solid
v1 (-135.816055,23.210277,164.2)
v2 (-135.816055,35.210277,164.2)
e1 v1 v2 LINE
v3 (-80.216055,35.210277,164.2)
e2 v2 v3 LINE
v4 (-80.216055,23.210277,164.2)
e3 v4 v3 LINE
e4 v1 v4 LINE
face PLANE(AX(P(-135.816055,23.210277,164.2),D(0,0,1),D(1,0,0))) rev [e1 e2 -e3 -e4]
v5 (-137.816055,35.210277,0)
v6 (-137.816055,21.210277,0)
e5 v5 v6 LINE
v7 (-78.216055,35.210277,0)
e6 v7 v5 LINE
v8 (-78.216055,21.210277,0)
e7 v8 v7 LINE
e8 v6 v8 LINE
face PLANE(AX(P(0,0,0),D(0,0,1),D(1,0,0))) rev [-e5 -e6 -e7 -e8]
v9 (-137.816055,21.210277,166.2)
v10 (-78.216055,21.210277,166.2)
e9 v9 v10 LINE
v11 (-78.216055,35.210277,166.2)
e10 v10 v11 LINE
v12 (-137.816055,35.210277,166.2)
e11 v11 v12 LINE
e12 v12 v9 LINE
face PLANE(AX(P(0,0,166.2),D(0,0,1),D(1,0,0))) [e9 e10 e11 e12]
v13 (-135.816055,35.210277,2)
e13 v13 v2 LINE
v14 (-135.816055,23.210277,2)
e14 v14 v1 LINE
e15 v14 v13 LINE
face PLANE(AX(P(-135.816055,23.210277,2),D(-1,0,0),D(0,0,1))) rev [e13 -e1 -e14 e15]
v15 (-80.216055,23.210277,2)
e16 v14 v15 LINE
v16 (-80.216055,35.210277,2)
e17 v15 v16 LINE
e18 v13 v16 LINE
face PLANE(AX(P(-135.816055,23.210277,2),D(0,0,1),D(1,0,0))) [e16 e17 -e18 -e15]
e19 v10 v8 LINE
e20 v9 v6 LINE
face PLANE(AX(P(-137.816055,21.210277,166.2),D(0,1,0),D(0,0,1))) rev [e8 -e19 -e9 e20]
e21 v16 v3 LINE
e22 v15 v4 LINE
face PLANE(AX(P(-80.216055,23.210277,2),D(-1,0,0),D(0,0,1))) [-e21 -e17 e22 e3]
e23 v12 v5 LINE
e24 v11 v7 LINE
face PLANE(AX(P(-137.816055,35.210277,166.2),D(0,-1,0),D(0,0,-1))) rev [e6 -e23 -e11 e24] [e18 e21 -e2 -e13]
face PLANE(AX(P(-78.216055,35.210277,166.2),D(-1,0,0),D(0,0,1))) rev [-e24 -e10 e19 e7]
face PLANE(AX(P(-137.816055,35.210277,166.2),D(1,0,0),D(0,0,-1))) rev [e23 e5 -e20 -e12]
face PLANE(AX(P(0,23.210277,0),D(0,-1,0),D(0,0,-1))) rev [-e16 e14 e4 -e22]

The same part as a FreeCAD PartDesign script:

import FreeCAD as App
import Part
import Sketcher
Q = App.Units.Quantity

doc = App.newDocument("Part")
params = doc.addObject("Spreadsheet::Sheet", "Params")
for row, (alias, value) in enumerate([
    ("sketch1_height", "14 mm"),
    ("sketch1_width", "59.6 mm"),
    ("pad1_length", "166.2 mm"),
    ("sketch2_width", "55.6 mm"),
    ("sketch2_height", "162.2 mm"),
    ("pocket1_length", "12 mm"),
], start=1):
    params.set(f"A{row}", alias)
    params.set(f"B{row}", "=" + value)
    params.setAlias(f"B{row}", alias)

body = doc.addObject("PartDesign::Body", "Body")

# Sketch on XY plane
sketch1 = body.newObject("Sketcher::SketchObject", "Sketch")
sketch1.AttachmentSupport = (doc.getObject("XY_Plane"), [""])
sketch1.MapMode = "FlatFace"
sketch1.addGeometry([
    Part.LineSegment(App.Vector(-138, 35, 0), App.Vector(-138, 21, 0)),
    Part.LineSegment(App.Vector(-138, 21, 0), App.Vector(-78, 21, 0)),
    Part.LineSegment(App.Vector(-78, 21, 0), App.Vector(-78, 35, 0)),
    Part.LineSegment(App.Vector(-78, 35, 0), App.Vector(-138, 35, 0)),
], False)
sketch1.addConstraint([
    Sketcher.Constraint("Coincident", 0, 2, 1, 1),
    Sketcher.Constraint("Coincident", 1, 2, 2, 1),
    Sketcher.Constraint("Coincident", 2, 2, 3, 1),
    Sketcher.Constraint("Coincident", 3, 2, 0, 1),
    Sketcher.Constraint("Vertical", 0),
    Sketcher.Constraint("Horizontal", 1),
    Sketcher.Constraint("Vertical", 2),
    Sketcher.Constraint("Horizontal", 3),
    Sketcher.Constraint("DistanceY", 0, 2, 0, 1, Q("14 mm")),
    Sketcher.Constraint("DistanceX", 1, 1, 1, 2, Q("59.6 mm")),
    Sketcher.Constraint("DistanceX", 0, 2, -1, 1, Q("137.816055 mm")),
    Sketcher.Constraint("DistanceY", -1, 1, 0, 2, Q("21.210277 mm")),
])
sketch1.setExpression("Constraints[8]", "Params.sketch1_height")
sketch1.setExpression("Constraints[9]", "Params.sketch1_width")
pad1 = body.newObject("PartDesign::Pad", "Pad")
pad1.Profile = sketch1
pad1.setExpression("Length", "Params.pad1_length")

# Sketch on XZ plane
sketch2 = body.newObject("Sketcher::SketchObject", "Sketch001")
sketch2.AttachmentSupport = (doc.getObject("XZ_Plane"), [""])
sketch2.MapMode = "FlatFace"
sketch2.AttachmentOffset = App.Placement(App.Vector(0, 0, -35.210277), App.Rotation())
sketch2.addGeometry([
    Part.LineSegment(App.Vector(-136, 2, 0), App.Vector(-136, 164, 0)),
    Part.LineSegment(App.Vector(-136, 164, 0), App.Vector(-80, 164, 0)),
    Part.LineSegment(App.Vector(-80, 164, 0), App.Vector(-80, 2, 0)),
    Part.LineSegment(App.Vector(-80, 2, 0), App.Vector(-136, 2, 0)),
], False)
sketch2.addConstraint([
    Sketcher.Constraint("Coincident", 0, 2, 1, 1),
    Sketcher.Constraint("Coincident", 1, 2, 2, 1),
    Sketcher.Constraint("Coincident", 2, 2, 3, 1),
    Sketcher.Constraint("Coincident", 3, 2, 0, 1),
    Sketcher.Constraint("Vertical", 0),
    Sketcher.Constraint("Horizontal", 1),
    Sketcher.Constraint("Vertical", 2),
    Sketcher.Constraint("Horizontal", 3),
    Sketcher.Constraint("DistanceX", 1, 1, 1, 2, Q("55.6 mm")),
    Sketcher.Constraint("DistanceY", 0, 1, 0, 2, Q("162.2 mm")),
    Sketcher.Constraint("DistanceY", -1, 1, 2, 2, Q("2 mm")),
    Sketcher.Constraint("DistanceX", 0, 2, -1, 1, Q("135.816055 mm")),
])
sketch2.setExpression("Constraints[8]", "Params.sketch2_width")
sketch2.setExpression("Constraints[9]", "Params.sketch2_height")
pocket1 = body.newObject("PartDesign::Pocket", "Pocket")
pocket1.Profile = sketch2
pocket1.setExpression("Length", "Params.pocket1_length")
pocket1.Reversed = True

doc.recompute()
